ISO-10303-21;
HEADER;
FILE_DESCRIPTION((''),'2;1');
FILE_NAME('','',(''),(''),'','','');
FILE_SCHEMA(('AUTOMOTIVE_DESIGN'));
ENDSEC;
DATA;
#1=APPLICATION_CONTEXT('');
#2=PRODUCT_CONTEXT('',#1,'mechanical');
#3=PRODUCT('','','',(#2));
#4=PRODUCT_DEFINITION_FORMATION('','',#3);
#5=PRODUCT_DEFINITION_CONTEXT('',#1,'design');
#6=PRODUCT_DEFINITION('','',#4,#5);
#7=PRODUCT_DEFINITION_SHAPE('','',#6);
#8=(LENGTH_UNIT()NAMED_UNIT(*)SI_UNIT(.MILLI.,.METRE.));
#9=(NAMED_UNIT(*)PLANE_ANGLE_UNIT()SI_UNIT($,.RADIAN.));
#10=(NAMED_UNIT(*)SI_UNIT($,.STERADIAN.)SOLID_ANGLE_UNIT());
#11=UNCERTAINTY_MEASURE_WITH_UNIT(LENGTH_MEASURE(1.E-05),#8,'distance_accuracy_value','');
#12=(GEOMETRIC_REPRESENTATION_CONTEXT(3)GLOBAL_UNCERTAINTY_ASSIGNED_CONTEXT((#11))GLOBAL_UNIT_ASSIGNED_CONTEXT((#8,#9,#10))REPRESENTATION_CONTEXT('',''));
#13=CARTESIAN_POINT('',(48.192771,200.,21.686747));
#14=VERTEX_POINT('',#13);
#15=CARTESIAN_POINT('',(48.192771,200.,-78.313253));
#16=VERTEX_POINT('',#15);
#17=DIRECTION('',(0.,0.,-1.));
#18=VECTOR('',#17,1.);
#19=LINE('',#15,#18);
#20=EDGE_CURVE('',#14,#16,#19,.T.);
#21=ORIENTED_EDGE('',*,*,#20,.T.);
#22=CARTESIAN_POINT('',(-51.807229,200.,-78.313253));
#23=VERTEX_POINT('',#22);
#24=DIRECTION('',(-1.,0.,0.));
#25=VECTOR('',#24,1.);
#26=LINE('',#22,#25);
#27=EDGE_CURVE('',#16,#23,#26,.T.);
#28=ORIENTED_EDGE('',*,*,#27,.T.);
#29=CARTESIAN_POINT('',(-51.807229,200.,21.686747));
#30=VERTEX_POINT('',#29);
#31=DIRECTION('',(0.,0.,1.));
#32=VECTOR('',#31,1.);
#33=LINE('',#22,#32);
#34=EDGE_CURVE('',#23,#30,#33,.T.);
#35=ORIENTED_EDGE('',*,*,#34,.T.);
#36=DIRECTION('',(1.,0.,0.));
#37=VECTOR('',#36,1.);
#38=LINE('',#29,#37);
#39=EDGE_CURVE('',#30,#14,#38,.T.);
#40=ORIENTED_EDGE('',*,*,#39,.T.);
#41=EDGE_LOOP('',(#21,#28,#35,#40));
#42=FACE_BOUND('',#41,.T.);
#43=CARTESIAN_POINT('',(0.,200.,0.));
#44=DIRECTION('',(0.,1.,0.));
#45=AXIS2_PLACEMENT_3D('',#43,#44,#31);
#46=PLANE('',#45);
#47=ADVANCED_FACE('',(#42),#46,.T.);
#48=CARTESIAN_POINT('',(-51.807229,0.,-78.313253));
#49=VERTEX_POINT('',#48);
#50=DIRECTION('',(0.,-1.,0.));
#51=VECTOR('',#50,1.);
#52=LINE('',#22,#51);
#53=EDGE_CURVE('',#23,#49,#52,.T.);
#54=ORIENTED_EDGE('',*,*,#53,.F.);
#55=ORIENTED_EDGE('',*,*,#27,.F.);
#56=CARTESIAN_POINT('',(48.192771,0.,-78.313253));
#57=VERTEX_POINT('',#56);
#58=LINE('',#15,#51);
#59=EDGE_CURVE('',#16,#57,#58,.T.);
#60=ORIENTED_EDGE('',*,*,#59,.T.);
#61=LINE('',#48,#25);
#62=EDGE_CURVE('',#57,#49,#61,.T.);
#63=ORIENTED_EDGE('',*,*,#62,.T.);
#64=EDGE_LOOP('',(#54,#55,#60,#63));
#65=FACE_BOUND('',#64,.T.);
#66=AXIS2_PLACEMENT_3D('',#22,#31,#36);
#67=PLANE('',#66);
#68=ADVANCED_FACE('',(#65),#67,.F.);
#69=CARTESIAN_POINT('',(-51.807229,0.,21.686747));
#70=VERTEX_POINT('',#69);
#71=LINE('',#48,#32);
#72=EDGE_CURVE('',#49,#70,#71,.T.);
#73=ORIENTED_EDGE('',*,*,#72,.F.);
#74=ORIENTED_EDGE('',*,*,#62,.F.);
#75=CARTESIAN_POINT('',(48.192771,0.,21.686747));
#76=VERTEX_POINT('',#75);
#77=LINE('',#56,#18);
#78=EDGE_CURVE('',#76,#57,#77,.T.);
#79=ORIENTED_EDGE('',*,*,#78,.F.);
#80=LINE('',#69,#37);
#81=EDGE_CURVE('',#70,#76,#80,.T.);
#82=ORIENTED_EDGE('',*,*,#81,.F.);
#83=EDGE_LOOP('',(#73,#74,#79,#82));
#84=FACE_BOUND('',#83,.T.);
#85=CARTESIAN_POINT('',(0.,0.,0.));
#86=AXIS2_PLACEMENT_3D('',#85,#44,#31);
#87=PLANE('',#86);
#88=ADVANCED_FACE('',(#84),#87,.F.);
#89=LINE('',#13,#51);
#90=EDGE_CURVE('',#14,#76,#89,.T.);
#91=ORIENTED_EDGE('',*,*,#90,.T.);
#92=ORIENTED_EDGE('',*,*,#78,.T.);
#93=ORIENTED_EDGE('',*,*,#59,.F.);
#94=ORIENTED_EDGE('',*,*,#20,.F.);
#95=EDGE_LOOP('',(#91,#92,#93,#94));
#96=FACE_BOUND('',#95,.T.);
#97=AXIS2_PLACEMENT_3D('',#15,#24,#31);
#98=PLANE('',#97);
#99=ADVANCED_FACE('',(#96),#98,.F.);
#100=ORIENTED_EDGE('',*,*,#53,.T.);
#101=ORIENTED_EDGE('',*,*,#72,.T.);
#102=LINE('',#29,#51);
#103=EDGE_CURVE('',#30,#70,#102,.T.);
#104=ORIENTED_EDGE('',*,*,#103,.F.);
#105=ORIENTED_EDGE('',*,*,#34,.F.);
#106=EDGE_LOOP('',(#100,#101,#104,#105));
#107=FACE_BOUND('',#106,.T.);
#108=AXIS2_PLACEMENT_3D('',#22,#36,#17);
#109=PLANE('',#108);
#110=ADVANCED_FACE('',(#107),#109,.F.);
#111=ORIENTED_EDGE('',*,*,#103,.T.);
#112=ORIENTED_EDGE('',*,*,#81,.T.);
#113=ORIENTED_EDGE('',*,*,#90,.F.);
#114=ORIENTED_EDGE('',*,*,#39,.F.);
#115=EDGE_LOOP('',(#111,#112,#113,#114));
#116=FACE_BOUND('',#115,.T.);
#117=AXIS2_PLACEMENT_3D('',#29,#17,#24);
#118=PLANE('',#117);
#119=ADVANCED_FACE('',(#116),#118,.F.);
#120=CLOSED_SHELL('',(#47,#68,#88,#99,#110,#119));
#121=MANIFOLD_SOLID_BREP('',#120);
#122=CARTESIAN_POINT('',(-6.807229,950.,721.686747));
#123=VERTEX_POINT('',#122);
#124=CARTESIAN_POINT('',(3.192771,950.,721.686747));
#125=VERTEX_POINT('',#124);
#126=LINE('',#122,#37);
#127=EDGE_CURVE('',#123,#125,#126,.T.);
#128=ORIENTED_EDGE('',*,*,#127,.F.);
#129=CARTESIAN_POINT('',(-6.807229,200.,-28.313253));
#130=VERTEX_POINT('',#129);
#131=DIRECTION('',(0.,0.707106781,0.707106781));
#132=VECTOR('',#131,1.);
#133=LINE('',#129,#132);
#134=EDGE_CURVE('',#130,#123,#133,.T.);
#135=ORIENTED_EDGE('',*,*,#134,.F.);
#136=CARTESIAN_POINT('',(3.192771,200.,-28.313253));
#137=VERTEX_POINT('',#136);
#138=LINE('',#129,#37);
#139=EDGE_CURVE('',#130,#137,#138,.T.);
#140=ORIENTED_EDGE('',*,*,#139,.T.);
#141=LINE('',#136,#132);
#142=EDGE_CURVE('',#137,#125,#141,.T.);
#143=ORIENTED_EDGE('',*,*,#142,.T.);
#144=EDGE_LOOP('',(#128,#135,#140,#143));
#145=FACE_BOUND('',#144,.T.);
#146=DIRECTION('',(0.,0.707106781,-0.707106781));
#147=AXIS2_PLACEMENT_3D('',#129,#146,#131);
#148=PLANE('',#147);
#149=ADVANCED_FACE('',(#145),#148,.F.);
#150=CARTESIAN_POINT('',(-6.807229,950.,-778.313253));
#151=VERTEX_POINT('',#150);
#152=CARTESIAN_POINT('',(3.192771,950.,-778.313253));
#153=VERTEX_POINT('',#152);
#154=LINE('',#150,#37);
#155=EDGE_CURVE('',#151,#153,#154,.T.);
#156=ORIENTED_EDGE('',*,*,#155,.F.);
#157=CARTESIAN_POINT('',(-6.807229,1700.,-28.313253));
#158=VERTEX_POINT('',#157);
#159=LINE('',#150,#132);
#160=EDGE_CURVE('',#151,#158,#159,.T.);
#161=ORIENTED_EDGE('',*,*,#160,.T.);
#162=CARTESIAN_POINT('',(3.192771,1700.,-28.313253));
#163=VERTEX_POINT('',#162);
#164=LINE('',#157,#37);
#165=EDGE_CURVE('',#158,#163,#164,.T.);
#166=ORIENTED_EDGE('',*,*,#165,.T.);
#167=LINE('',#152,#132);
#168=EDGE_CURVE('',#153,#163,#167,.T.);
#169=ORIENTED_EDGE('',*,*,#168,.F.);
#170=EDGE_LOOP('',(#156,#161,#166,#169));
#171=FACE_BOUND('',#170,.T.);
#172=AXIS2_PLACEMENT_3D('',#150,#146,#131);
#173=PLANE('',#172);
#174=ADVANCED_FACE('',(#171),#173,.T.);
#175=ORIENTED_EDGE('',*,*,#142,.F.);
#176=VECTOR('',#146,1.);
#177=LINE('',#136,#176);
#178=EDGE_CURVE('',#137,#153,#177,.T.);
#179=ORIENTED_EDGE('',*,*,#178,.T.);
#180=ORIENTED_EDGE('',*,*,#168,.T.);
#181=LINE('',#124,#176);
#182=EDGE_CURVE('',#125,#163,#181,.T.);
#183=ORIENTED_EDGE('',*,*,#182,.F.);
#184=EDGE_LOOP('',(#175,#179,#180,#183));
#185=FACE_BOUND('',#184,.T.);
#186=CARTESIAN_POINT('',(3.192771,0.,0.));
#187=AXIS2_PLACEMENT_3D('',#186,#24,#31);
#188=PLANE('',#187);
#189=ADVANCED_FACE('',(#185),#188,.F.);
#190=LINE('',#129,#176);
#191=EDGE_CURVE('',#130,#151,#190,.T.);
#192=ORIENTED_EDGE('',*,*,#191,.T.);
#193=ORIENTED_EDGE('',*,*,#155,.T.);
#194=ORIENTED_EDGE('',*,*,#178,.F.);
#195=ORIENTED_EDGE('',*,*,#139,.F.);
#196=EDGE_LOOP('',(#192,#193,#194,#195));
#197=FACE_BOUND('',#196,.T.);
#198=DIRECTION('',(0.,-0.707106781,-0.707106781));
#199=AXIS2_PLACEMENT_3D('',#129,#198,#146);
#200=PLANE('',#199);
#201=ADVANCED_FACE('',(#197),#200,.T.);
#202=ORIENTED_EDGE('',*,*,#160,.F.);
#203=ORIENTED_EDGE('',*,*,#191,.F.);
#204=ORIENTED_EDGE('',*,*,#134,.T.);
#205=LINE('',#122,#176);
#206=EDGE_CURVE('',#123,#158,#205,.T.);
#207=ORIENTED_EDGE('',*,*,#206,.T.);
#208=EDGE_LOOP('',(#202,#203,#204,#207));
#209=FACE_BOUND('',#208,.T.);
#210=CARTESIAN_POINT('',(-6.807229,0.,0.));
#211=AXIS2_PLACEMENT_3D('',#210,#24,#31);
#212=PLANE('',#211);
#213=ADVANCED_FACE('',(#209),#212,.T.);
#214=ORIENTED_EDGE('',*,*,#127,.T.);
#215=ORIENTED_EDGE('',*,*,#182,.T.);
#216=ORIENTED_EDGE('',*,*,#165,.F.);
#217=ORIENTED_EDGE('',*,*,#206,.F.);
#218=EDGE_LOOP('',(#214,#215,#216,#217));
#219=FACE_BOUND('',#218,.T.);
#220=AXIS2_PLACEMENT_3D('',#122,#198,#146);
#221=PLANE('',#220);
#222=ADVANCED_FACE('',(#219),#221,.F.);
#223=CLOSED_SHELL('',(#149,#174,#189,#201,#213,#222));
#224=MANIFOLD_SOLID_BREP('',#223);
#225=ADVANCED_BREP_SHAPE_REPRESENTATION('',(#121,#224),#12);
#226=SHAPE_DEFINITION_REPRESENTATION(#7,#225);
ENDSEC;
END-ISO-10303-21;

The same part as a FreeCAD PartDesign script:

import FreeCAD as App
import Part
import Sketcher

doc = App.newDocument("Part")
body = doc.addObject("PartDesign::Body", "Body")

sketch1 = body.newObject("Sketcher::SketchObject", "Sketch")
sketch1.AttachmentSupport = (doc.getObject("XZ_Plane"), [""])
sketch1.MapMode = "FlatFace"
sketch1.addGeometry([
    Part.LineSegment(App.Vector(-51.807229, -78.313253, 0), App.Vector(-51.807229, 21.686747, 0)),
    Part.LineSegment(App.Vector(-51.807229, 21.686747, 0), App.Vector(48.192771, 21.686747, 0)),
    Part.LineSegment(App.Vector(48.192771, 21.686747, 0), App.Vector(48.192771, -78.313253, 0)),
    Part.LineSegment(App.Vector(48.192771, -78.313253, 0), App.Vector(-51.807229, -78.313253, 0)),
], False)
sketch1.addConstraint([
    Sketcher.Constraint("Coincident", 0, 2, 1, 1),
    Sketcher.Constraint("Coincident", 1, 2, 2, 1),
    Sketcher.Constraint("Coincident", 2, 2, 3, 1),
    Sketcher.Constraint("Coincident", 3, 2, 0, 1),
    Sketcher.Constraint("Vertical", 0),
    Sketcher.Constraint("Horizontal", 1),
    Sketcher.Constraint("Vertical", 2),
    Sketcher.Constraint("Horizontal", 3),
    Sketcher.Constraint("Equal", 3, 0),
    Sketcher.Constraint("DistanceX", 1, 1, 1, 2, 100.0),
    Sketcher.Constraint("DistanceX", 0, 2, -1, 1, 51.807229),
    Sketcher.Constraint("DistanceY", -1, 1, 0, 2, 21.686747),
])
pad1 = body.newObject("PartDesign::Pad", "Pad")
pad1.Profile = sketch1
pad1.Length = 200
pad1.Reversed = True
body2 = doc.addObject("PartDesign::Body", "Body001")

sketch2 = body2.newObject("Sketcher::SketchObject", "Sketch001")
sketch2.AttachmentSupport = (doc.getObject("YZ_Plane001"), [""])
sketch2.MapMode = "FlatFace"
sketch2.AttachmentOffset = App.Placement(App.Vector(0, 0, -1.807229), App.Rotation())
sketch2.addGeometry([
    Part.LineSegment(App.Vector(200, -28.313253, 0), App.Vector(950, -778.313253, 0)),
    Part.LineSegment(App.Vector(950, -778.313253, 0), App.Vector(1700, -28.313253, 0)),
    Part.LineSegment(App.Vector(1700, -28.313253, 0), App.Vector(950, 721.686747, 0)),
    Part.LineSegment(App.Vector(950, 721.686747, 0), App.Vector(200, -28.313253, 0)),
], False)
sketch2.addConstraint([
    Sketcher.Constraint("Coincident", 0, 2, 1, 1),
    Sketcher.Constraint("Coincident", 1, 2, 2, 1),
    Sketcher.Constraint("Coincident", 2, 2, 3, 1),
    Sketcher.Constraint("Coincident", 3, 2, 0, 1),
    Sketcher.Constraint("Perpendicular", 0, 1),
    Sketcher.Constraint("Perpendicular", 1, 2),
    Sketcher.Constraint("Perpendicular", 2, 3),
    Sketcher.Constraint("Horizontal", 1, 2, 3, 2),
    Sketcher.Constraint("Vertical", 0, 2, 2, 2),
    Sketcher.Constraint("DistanceX", -1, 1, 0, 2, 950.0),
    Sketcher.Constraint("DistanceX", -1, 1, 1, 2, 1700.0),
    Sketcher.Constraint("DistanceY", 0, 2, -1, 1, 778.313253),
])
pad2 = body2.newObject("PartDesign::Pad", "Pad001")
pad2.Profile = sketch2
pad2.Type = "TwoLengths"
pad2.Length = 5
pad2.Length2 = 5

doc.recompute()
